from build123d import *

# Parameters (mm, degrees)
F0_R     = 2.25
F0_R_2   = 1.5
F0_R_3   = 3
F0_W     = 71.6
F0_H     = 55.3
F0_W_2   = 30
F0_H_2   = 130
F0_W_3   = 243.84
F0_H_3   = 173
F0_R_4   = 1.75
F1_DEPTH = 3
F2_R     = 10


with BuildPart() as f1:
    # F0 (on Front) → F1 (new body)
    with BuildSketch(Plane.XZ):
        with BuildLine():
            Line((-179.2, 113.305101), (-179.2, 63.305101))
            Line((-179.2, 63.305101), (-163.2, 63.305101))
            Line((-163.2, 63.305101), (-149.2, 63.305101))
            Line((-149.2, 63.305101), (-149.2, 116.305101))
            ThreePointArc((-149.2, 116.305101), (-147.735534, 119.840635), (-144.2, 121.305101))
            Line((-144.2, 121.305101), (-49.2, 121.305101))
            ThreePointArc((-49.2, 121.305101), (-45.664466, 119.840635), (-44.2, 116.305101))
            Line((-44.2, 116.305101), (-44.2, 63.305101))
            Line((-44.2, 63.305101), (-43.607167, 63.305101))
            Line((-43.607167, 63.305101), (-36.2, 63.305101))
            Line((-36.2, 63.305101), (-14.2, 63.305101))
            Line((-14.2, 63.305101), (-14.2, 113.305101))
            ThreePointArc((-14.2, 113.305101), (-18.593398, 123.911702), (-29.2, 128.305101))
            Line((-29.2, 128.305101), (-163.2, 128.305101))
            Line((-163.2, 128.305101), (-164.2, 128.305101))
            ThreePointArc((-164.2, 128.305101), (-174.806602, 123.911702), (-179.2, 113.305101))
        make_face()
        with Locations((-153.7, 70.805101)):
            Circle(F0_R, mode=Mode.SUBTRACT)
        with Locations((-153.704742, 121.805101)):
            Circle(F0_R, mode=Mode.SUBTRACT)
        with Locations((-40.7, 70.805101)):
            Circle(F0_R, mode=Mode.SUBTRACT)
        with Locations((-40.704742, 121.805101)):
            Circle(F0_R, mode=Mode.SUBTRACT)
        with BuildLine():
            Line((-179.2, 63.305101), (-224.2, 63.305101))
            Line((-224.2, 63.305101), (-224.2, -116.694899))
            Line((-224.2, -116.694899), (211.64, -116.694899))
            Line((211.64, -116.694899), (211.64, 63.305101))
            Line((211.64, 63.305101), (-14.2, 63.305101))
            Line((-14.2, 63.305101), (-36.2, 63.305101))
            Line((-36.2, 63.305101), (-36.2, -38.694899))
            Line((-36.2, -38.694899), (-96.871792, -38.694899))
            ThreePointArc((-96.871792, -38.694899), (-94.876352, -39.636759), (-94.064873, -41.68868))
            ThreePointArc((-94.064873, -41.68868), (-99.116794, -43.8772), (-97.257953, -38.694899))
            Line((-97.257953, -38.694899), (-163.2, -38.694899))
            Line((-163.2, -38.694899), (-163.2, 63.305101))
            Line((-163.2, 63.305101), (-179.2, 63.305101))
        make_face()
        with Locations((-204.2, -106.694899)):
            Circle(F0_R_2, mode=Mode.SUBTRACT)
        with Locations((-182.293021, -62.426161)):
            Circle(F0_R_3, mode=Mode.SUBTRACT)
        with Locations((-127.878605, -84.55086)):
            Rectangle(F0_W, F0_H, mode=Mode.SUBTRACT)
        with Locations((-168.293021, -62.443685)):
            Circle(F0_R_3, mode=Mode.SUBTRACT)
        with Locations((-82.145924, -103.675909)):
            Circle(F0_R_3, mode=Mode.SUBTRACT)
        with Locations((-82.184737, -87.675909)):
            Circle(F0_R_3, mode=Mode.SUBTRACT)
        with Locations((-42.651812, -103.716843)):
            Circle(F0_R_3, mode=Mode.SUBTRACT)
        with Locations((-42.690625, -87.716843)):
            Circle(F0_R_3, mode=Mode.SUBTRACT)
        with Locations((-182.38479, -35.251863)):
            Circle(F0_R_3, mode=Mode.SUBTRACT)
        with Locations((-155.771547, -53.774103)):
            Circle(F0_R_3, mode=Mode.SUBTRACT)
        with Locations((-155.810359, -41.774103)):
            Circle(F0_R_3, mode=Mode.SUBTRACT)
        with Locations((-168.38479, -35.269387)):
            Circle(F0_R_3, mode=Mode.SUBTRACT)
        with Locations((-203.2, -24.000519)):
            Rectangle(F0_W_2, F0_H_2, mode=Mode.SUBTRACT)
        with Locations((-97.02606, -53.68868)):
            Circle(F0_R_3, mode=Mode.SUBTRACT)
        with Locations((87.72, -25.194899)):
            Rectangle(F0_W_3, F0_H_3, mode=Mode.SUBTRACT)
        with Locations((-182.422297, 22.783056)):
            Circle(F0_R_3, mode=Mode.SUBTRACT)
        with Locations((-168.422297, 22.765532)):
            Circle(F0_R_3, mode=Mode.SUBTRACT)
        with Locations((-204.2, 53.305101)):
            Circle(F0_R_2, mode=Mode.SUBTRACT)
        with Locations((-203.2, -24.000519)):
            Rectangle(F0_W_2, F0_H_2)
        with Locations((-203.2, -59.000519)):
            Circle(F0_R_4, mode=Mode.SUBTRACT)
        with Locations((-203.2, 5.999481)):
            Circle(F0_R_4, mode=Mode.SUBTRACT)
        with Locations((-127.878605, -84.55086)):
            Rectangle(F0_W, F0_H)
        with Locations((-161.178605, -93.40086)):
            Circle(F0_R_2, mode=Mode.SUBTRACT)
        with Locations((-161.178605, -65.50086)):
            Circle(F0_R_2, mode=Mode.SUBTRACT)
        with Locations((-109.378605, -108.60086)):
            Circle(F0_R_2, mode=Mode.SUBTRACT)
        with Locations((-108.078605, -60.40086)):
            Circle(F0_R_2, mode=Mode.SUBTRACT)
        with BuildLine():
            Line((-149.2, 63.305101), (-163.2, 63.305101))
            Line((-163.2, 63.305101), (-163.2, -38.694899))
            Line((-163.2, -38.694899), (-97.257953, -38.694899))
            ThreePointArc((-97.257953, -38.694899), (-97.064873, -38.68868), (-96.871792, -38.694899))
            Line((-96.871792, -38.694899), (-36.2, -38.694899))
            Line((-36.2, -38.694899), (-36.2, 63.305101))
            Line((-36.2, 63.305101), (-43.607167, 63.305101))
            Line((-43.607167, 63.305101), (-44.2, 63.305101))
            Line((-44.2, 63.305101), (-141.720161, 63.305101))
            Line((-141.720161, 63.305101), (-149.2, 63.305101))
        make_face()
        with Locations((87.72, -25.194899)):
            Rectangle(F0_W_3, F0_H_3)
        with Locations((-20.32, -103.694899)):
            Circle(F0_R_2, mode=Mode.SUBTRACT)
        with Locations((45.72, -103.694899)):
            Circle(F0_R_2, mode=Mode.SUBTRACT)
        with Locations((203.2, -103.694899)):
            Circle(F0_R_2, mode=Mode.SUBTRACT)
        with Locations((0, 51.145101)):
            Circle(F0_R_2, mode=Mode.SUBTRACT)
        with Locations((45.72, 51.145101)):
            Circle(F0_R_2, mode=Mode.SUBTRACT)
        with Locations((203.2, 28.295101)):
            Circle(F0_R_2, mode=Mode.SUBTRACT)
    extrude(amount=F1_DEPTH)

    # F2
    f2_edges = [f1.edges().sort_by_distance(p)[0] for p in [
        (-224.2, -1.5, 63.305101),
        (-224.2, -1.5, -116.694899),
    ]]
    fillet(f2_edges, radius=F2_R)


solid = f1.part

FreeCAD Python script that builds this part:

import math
import FreeCAD as App
import Part
import Sketcher


def edges_at(feature, points):
    """Names of the edges that pass closest to the given points."""
    edges = feature.Shape.Edges
    near = lambda p: min(range(len(edges)), key=lambda i: edges[i].distToShape(Part.Vertex(*p))[0])
    return sorted({f"Edge{near(p) + 1}" for p in points})

doc = App.newDocument("Part")
body = doc.addObject("PartDesign::Body", "Body")

sketch1 = body.newObject("Sketcher::SketchObject", "Sketch")
sketch1.AttachmentSupport = (doc.getObject("XZ_Plane"), [""])
sketch1.MapMode = "FlatFace"
sketch1.addGeometry(Part.LineSegment(App.Vector(-179.2, 113.305101, 0), App.Vector(-179.2, 63.305101, 0)), False)
sketch1.addGeometry(Part.LineSegment(App.Vector(-179.2, 63.305101, 0), App.Vector(-224.2, 63.305101, 0)), False)
sketch1.addGeometry(Part.LineSegment(App.Vector(-224.2, 63.305101, 0), App.Vector(-224.2, -116.694899, 0)), False)
sketch1.addGeometry(Part.LineSegment(App.Vector(-224.2, -116.694899, 0), App.Vector(211.64, -116.694899, 0)), False)
sketch1.addGeometry(Part.LineSegment(App.Vector(211.64, -116.694899, 0), App.Vector(211.64, 63.305101, 0)), False)
sketch1.addGeometry(Part.LineSegment(App.Vector(211.64, 63.305101, 0), App.Vector(-14.2, 63.305101, 0)), False)
sketch1.addGeometry(Part.LineSegment(App.Vector(-14.2, 63.305101, 0), App.Vector(-14.2, 113.305101, 0)), False)
sketch1.addGeometry(Part.ArcOfCircle(Part.Circle(App.Vector(-29.200001, 113.3051, 0), App.Vector(0, 0, 1), 15.000001), math.radians(0.000003), math.radians(89.999997)), False)
sketch1.addGeometry(Part.LineSegment(App.Vector(-29.2, 128.305101, 0), App.Vector(-164.2, 128.305101, 0)), False)
sketch1.addGeometry(Part.ArcOfCircle(Part.Circle(App.Vector(-164.199999, 113.3051, 0), App.Vector(0, 0, 1), 15.000001), math.radians(90.000003), math.radians(179.999997)), False)
sketch1.addGeometry(Part.Circle(App.Vector(-204.2, -106.694899, 0), App.Vector(0, 0, 1), 1.5), False)
sketch1.addGeometry(Part.Circle(App.Vector(-161.178605, -93.40086, 0), App.Vector(0, 0, 1), 1.5), False)
sketch1.addGeometry(Part.Circle(App.Vector(-109.378605, -108.60086, 0), App.Vector(0, 0, 1), 1.5), False)
sketch1.addGeometry(Part.Circle(App.Vector(-203.2, -59.000519, 0), App.Vector(0, 0, 1), 1.75), False)
sketch1.addGeometry(Part.Circle(App.Vector(-182.293021, -62.426161, 0), App.Vector(0, 0, 1), 3), False)
sketch1.addGeometry(Part.Circle(App.Vector(-168.293021, -62.443685, 0), App.Vector(0, 0, 1), 3), False)
sketch1.addGeometry(Part.Circle(App.Vector(-161.178605, -65.50086, 0), App.Vector(0, 0, 1), 1.5), False)
sketch1.addGeometry(Part.Circle(App.Vector(-155.771547, -53.774103, 0), App.Vector(0, 0, 1), 3), False)
sketch1.addGeometry(Part.Circle(App.Vector(-108.078605, -60.40086, 0), App.Vector(0, 0, 1), 1.5), False)
sketch1.addGeometry(Part.Circle(App.Vector(-82.145924, -103.675909, 0), App.Vector(0, 0, 1), 3), False)
sketch1.addGeometry(Part.Circle(App.Vector(-82.184737, -87.675909, 0), App.Vector(0, 0, 1), 3), False)
sketch1.addGeometry(Part.Circle(App.Vector(-42.651812, -103.716843, 0), App.Vector(0, 0, 1), 3), False)
sketch1.addGeometry(Part.Circle(App.Vector(-20.32, -103.694899, 0), App.Vector(0, 0, 1), 1.5), False)
sketch1.addGeometry(Part.Circle(App.Vector(-42.690625, -87.716843, 0), App.Vector(0, 0, 1), 3), False)
sketch1.addGeometry(Part.Circle(App.Vector(-97.02606, -53.68868, 0), App.Vector(0, 0, 1), 3), False)
sketch1.addGeometry(Part.Circle(App.Vector(-155.810359, -41.774103, 0), App.Vector(0, 0, 1), 3), False)
sketch1.addGeometry(Part.Circle(App.Vector(-182.38479, -35.251863, 0), App.Vector(0, 0, 1), 3), False)
sketch1.addGeometry(Part.Circle(App.Vector(-168.38479, -35.269387, 0), App.Vector(0, 0, 1), 3), False)
sketch1.addGeometry(Part.Circle(App.Vector(-203.2, 5.999481, 0), App.Vector(0, 0, 1), 1.75), False)
sketch1.addGeometry(Part.ArcOfCircle(Part.Circle(App.Vector(-97.064873, -41.688679, 0), App.Vector(0, 0, 1), 3), math.radians(93.690103), math.radians(359.999989)), False)
sketch1.addGeometry(Part.ArcOfCircle(Part.Circle(App.Vector(-97.064873, -41.689062, 0), App.Vector(0, 0, 1), 3.000382), math.radians(86.310354), math.radians(93.689646)), False)
sketch1.addGeometry(Part.ArcOfCircle(Part.Circle(App.Vector(-97.064873, -41.688679, 0), App.Vector(0, 0, 1), 3), math.radians(-0.00002), math.radians(86.309879)), False)
sketch1.addGeometry(Part.Circle(App.Vector(45.72, -103.694899, 0), App.Vector(0, 0, 1), 1.5), False)
sketch1.addGeometry(Part.Circle(App.Vector(203.2, -103.694899, 0), App.Vector(0, 0, 1), 1.5), False)
sketch1.addGeometry(Part.Circle(App.Vector(-182.422297, 22.783056, 0), App.Vector(0, 0, 1), 3), False)
sketch1.addGeometry(Part.Circle(App.Vector(-168.422297, 22.765532, 0), App.Vector(0, 0, 1), 3), False)
sketch1.addGeometry(Part.Circle(App.Vector(-204.2, 53.305101, 0), App.Vector(0, 0, 1), 1.5), False)
sketch1.addGeometry(Part.Circle(App.Vector(-153.7, 70.805101, 0), App.Vector(0, 0, 1), 2.25), False)
sketch1.addGeometry(Part.Circle(App.Vector(-153.704742, 121.805101, 0), App.Vector(0, 0, 1), 2.25), False)
sketch1.addGeometry(Part.LineSegment(App.Vector(-149.2, 63.305101, 0), App.Vector(-149.2, 116.305101, 0)), False)
sketch1.addGeometry(Part.ArcOfCircle(Part.Circle(App.Vector(-144.2, 116.305101, 0), App.Vector(0, 0, 1), 5), math.radians(89.999996), math.radians(180.000004)), False)
sketch1.addGeometry(Part.LineSegment(App.Vector(-144.2, 121.305101, 0), App.Vector(-49.2, 121.305101, 0)), False)
sketch1.addGeometry(Part.ArcOfCircle(Part.Circle(App.Vector(-49.2, 116.305101, 0), App.Vector(0, 0, 1), 5), math.radians(-0.000004), math.radians(90.000004)), False)
sketch1.addGeometry(Part.LineSegment(App.Vector(-44.2, 116.305101, 0), App.Vector(-44.2, 63.305101, 0)), False)
sketch1.addGeometry(Part.LineSegment(App.Vector(-44.2, 63.305101, 0), App.Vector(-149.2, 63.305101, 0)), False)
sketch1.addGeometry(Part.Circle(App.Vector(-40.7, 70.805101, 0), App.Vector(0, 0, 1), 2.25), False)
sketch1.addGeometry(Part.Circle(App.Vector(-40.704742, 121.805101, 0), App.Vector(0, 0, 1), 2.25), False)
sketch1.addGeometry(Part.Circle(App.Vector(0, 51.145101, 0), App.Vector(0, 0, 1), 1.5), False)
sketch1.addGeometry(Part.Circle(App.Vector(45.72, 51.145101, 0), App.Vector(0, 0, 1), 1.5), False)
sketch1.addGeometry(Part.Circle(App.Vector(203.2, 28.295101, 0), App.Vector(0, 0, 1), 1.5), False)
sketch1.addConstraint(Sketcher.Constraint("Coincident", 0, 2, 1, 1))
sketch1.addConstraint(Sketcher.Constraint("Coincident", 1, 2, 2, 1))
sketch1.addConstraint(Sketcher.Constraint("Coincident", 2, 2, 3, 1))
sketch1.addConstraint(Sketcher.Constraint("Coincident", 3, 2, 4, 1))
sketch1.addConstraint(Sketcher.Constraint("Coincident", 4, 2, 5, 1))
sketch1.addConstraint(Sketcher.Constraint("Coincident", 5, 2, 6, 1))
sketch1.addConstraint(Sketcher.Constraint("Tangent", 6, 2, 7, 1))
sketch1.addConstraint(Sketcher.Constraint("Tangent", 7, 2, 8, 1))
sketch1.addConstraint(Sketcher.Constraint("Tangent", 8, 2, 9, 1))
sketch1.addConstraint(Sketcher.Constraint("Tangent", 9, 2, 0, 1))
sketch1.addConstraint(Sketcher.Constraint("Coincident", 29, 1, 30, 2))
sketch1.addConstraint(Sketcher.Constraint("Coincident", 30, 1, 31, 2))
sketch1.addConstraint(Sketcher.Constraint("Tangent", 31, 1, 29, 2))
sketch1.addConstraint(Sketcher.Constraint("Tangent", 39, 2, 40, 2))
sketch1.addConstraint(Sketcher.Constraint("Tangent", 40, 1, 41, 1))
sketch1.addConstraint(Sketcher.Constraint("Tangent", 41, 2, 42, 2))
sketch1.addConstraint(Sketcher.Constraint("Tangent", 42, 1, 43, 1))
sketch1.addConstraint(Sketcher.Constraint("Coincident", 43, 2, 44, 1))
sketch1.addConstraint(Sketcher.Constraint("Coincident", 44, 2, 39, 1))
sketch1.addConstraint(Sketcher.Constraint("Vertical", 0))
sketch1.addConstraint(Sketcher.Constraint("Horizontal", 1))
sketch1.addConstraint(Sketcher.Constraint("Vertical", 2))
sketch1.addConstraint(Sketcher.Constraint("Horizontal", 3))
sketch1.addConstraint(Sketcher.Constraint("Vertical", 4))
sketch1.addConstraint(Sketcher.Constraint("Horizontal", 5))
sketch1.addConstraint(Sketcher.Constraint("Vertical", 6))
sketch1.addConstraint(Sketcher.Constraint("Horizontal", 8))
sketch1.addConstraint(Sketcher.Constraint("Vertical", 39))
sketch1.addConstraint(Sketcher.Constraint("Horizontal", 41))
sketch1.addConstraint(Sketcher.Constraint("Vertical", 43))
sketch1.addConstraint(Sketcher.Constraint("Horizontal", 44))
sketch1.addConstraint(Sketcher.Constraint("Equal", 7, 9))
sketch1.addConstraint(Sketcher.Constraint("Equal", 10, 11))
sketch1.addConstraint(Sketcher.Constraint("Equal", 11, 12))
sketch1.addConstraint(Sketcher.Constraint("Equal", 14, 15))
sketch1.addConstraint(Sketcher.Constraint("Equal", 12, 16))
sketch1.addConstraint(Sketcher.Constraint("Equal", 15, 17))
sketch1.addConstraint(Sketcher.Constraint("Equal", 16, 18))
sketch1.addConstraint(Sketcher.Constraint("Equal", 17, 19))
sketch1.addConstraint(Sketcher.Constraint("Equal", 19, 20))
sketch1.addConstraint(Sketcher.Constraint("Equal", 20, 21))
sketch1.addConstraint(Sketcher.Constraint("Equal", 18, 22))
sketch1.addConstraint(Sketcher.Constraint("Equal", 21, 23))
sketch1.addConstraint(Sketcher.Constraint("Equal", 23, 24))
sketch1.addConstraint(Sketcher.Constraint("Equal", 24, 25))
sketch1.addConstraint(Sketcher.Constraint("Equal", 25, 26))
sketch1.addConstraint(Sketcher.Constraint("Equal", 26, 27))
sketch1.addConstraint(Sketcher.Constraint("Equal", 13, 28))
sketch1.addConstraint(Sketcher.Constraint("Equal", 27, 29))
sketch1.addConstraint(Sketcher.Constraint("Equal", 29, 31))
sketch1.addConstraint(Sketcher.Constraint("Equal", 22, 32))
sketch1.addConstraint(Sketcher.Constraint("Equal", 32, 33))
sketch1.addConstraint(Sketcher.Constraint("Equal", 31, 34))
sketch1.addConstraint(Sketcher.Constraint("Equal", 34, 35))
sketch1.addConstraint(Sketcher.Constraint("Equal", 33, 36))
sketch1.addConstraint(Sketcher.Constraint("Equal", 37, 38))
sketch1.addConstraint(Sketcher.Constraint("Equal", 40, 42))
sketch1.addConstraint(Sketcher.Constraint("Equal", 38, 45))
sketch1.addConstraint(Sketcher.Constraint("Equal", 45, 46))
sketch1.addConstraint(Sketcher.Constraint("Equal", 36, 47))
sketch1.addConstraint(Sketcher.Constraint("Equal", 47, 48))
sketch1.addConstraint(Sketcher.Constraint("Equal", 48, 49))
sketch1.addConstraint(Sketcher.Constraint("PointOnObject", 47, 3, -2))
sketch1.addConstraint(Sketcher.Constraint("Horizontal", 22, 3, 32, 3))
sketch1.addConstraint(Sketcher.Constraint("Horizontal", 32, 3, 33, 3))
sketch1.addConstraint(Sketcher.Constraint("Horizontal", 37, 3, 45, 3))
sketch1.addConstraint(Sketcher.Constraint("Horizontal", 38, 3, 46, 3))
sketch1.addConstraint(Sketcher.Constraint("Horizontal", 47, 3, 48, 3))
sketch1.addConstraint(Sketcher.Constraint("Horizontal", 1, 2, 4, 2))
sketch1.addConstraint(Sketcher.Constraint("Horizontal", 29, 1, 30, 1))
sketch1.addConstraint(Sketcher.Constraint("Horizontal", 29, 3, 31, 1))
sketch1.addConstraint(Sketcher.Constraint("Horizontal", 5, 2, 43, 2))
sketch1.addConstraint(Sketcher.Constraint("Vertical", 11, 3, 16, 3))
sketch1.addConstraint(Sketcher.Constraint("Vertical", 13, 3, 28, 3))
sketch1.addConstraint(Sketcher.Constraint("Vertical", 10, 3, 36, 3))
sketch1.addConstraint(Sketcher.Constraint("Vertical", 32, 3, 48, 3))
sketch1.addConstraint(Sketcher.Constraint("Vertical", 33, 3, 49, 3))
sketch1.addConstraint(Sketcher.Constraint("Diameter", 10, 3.0))
sketch1.addConstraint(Sketcher.Constraint("Diameter", 14, 6.0))
sketch1.addConstraint(Sketcher.Constraint("Radius", 7, 15.000001))
sketch1.addConstraint(Sketcher.Constraint("Radius", 40, 5.0))
sketch1.addConstraint(Sketcher.Constraint("Diameter", 13, 3.5))
sketch1.addConstraint(Sketcher.Constraint("Diameter", 37, 4.5))
sketch1.addConstraint(Sketcher.Constraint("DistanceX", 1, 2, 1, 1, 45.0))
sketch1.addConstraint(Sketcher.Constraint("DistanceX", 8, 2, 8, 1, 135.0))
sketch1.addConstraint(Sketcher.Constraint("DistanceX", 41, 1, 41, 2, 95.0))
sketch1.addConstraint(Sketcher.Constraint("DistanceY", 0, 2, 0, 1, 50.0))
sketch1.addConstraint(Sketcher.Constraint("DistanceY", 2, 2, 2, 1, 180.0))
sketch1.addConstraint(Sketcher.Constraint("DistanceY", 39, 1, 39, 2, 53.0))
sketch1.addConstraint(Sketcher.Constraint("DistanceX", 10, 3, 9, 3, 40.000001))
sketch1.addConstraint(Sketcher.Constraint("DistanceY", 10, 3, 9, 3, 219.999999))
sketch1.addConstraint(Sketcher.Constraint("DistanceX", 10, 3, 13, 3, 1.0))
sketch1.addConstraint(Sketcher.Constraint("DistanceX", 14, 3, 15, 3, 14.0))
sketch1.addConstraint(Sketcher.Constraint("DistanceY", 11, 3, 18, 3, 33.0))
sketch1.addConstraint(Sketcher.Constraint("DistanceY", 19, 3, 20, 3, 16.0))
sketch1.addConstraint(Sketcher.Constraint("DistanceY", 21, 3, 23, 3, 16.0))
sketch1.addConstraint(Sketcher.Constraint("DistanceY", 17, 3, 25, 3, 12.0))
sketch1.addConstraint(Sketcher.Constraint("DistanceX", 26, 3, 27, 3, 14.0))
sketch1.addConstraint(Sketcher.Constraint("DistanceY", 13, 3, 28, 3, 65.0))
sketch1.addConstraint(Sketcher.Constraint("DistanceY", 24, 3, 29, 3, 12.000001))
sketch1.addConstraint(Sketcher.Constraint("DistanceX", 34, 3, 35, 3, 14.0))
sketch1.addConstraint(Sketcher.Constraint("DistanceY", 36, 3, 9, 3, 59.999999))
sketch1.addConstraint(Sketcher.Constraint("DistanceY", 37, 3, 38, 3, 51.0))
sketch1.addConstraint(Sketcher.Constraint("DistanceX", 9, 3, 40, 3, 19.999999))
sketch1.addConstraint(Sketcher.Constraint("DistanceX", 37, 3, 45, 3, 113.0))
sketch1.addConstraint(Sketcher.Constraint("DistanceX", 38, 3, 46, 3, 113.0))
sketch1.addConstraint(Sketcher.Constraint("DistanceY", 3, 2, 33, 3, 13.0))
sketch1.addConstraint(Sketcher.Constraint("DistanceX", 3, 1, 3, 2, 435.84))
sketch1.addConstraint(Sketcher.Constraint("DistanceX", 7, 3, -1, 1, 29.200001))
sketch1.addConstraint(Sketcher.Constraint("DistanceX", -1, 1, 33, 3, 203.2))
sketch1.addConstraint(Sketcher.Constraint("DistanceX", 37, 3, -1, 1, 153.7))
sketch1.addConstraint(Sketcher.Constraint("DistanceX", 11, 3, 12, 3, 51.8))
sketch1.addConstraint(Sketcher.Constraint("DistanceY", 12, 3, 11, 3, 15.2))
sketch1.addConstraint(Sketcher.Constraint("DistanceY", 11, 3, 16, 3, 27.9))
sketch1.addConstraint(Sketcher.Constraint("DistanceX", 12, 3, 18, 3, 1.3))
sketch1.addConstraint(Sketcher.Constraint("DistanceY", 37, 3, 9, 3, 42.499999))
sketch1.addConstraint(Sketcher.Constraint("DistanceX", 22, 3, -1, 1, 20.32))
sketch1.addConstraint(Sketcher.Constraint("DistanceX", -1, 1, 32, 3, 45.72))
sketch1.addConstraint(Sketcher.Constraint("DistanceY", 47, 3, 45, 3, 19.66))
sketch1.addConstraint(Sketcher.Constraint("DistanceY", 33, 3, 49, 3, 131.99))
sketch1.addConstraint(Sketcher.Constraint("Radius", 30, 3.000382))
sketch1.addConstraint(Sketcher.Constraint("DistanceY", -1, 1, 7, 3, 113.3051))
sketch1.addConstraint(Sketcher.Constraint("DistanceY", 29, 1, -1, 1, 38.694899))
sketch1.addConstraint(Sketcher.Constraint("DistanceY", 11, 3, 14, 3, 30.974699))
sketch1.addConstraint(Sketcher.Constraint("DistanceX", 19, 3, 23, 3, 39.455299))
sketch1.addConstraint(Sketcher.Constraint("DistanceY", 14, 3, 26, 3, 27.174298))
sketch1.addConstraint(Sketcher.Constraint("DistanceY", 15, 3, 27, 3, 27.174298))
sketch1.addConstraint(Sketcher.Constraint("DistanceY", 11, 3, -1, 1, 93.40086))
sketch1.addConstraint(Sketcher.Constraint("DistanceY", 13, 3, -1, 1, 59.000519))
sketch1.addConstraint(Sketcher.Constraint("DistanceX", 14, 3, -1, 1, 182.293021))
sketch1.addConstraint(Sketcher.Constraint("DistanceY", 19, 3, -1, 1, 103.675909))
sketch1.addConstraint(Sketcher.Constraint("DistanceX", 24, 3, -1, 1, 97.02606))
sketch1.addConstraint(Sketcher.Constraint("DistanceY", 24, 3, -1, 1, 53.68868))
sketch1.addConstraint(Sketcher.Constraint("DistanceX", 25, 3, -1, 1, 155.810359))
sketch1.addConstraint(Sketcher.Constraint("DistanceX", 26, 3, -1, 1, 182.38479))
sketch1.addConstraint(Sketcher.Constraint("DistanceX", 30, 1, -1, 1, 96.871792))
sketch1.addConstraint(Sketcher.Constraint("DistanceX", 16, 3, 17, 3, 5.407058))
sketch1.addConstraint(Sketcher.Constraint("DistanceY", 14, 3, 17, 3, 8.652058))
sketch1.addConstraint(Sketcher.Constraint("DistanceX", 12, 3, 19, 3, 27.232681))
sketch1.addConstraint(Sketcher.Constraint("DistanceX", 11, 3, 20, 3, 78.993868))
sketch1.addConstraint(Sketcher.Constraint("DistanceX", 19, 3, 21, 3, 39.494112))
sketch1.addConstraint(Sketcher.Constraint("DistanceX", 21, 3, 22, 3, 22.331812))
sketch1.addConstraint(Sketcher.Constraint("DistanceY", 27, 3, 28, 3, 41.268868))
sketch1.addConstraint(Sketcher.Constraint("DistanceY", 26, 3, 34, 3, 58.034919))
sketch1.addConstraint(Sketcher.Constraint("DistanceX", 34, 3, 17, 3, 26.65075))
sketch1.addConstraint(Sketcher.Constraint("DistanceY", 28, 3, 35, 3, 16.766051))
sketch1.addConstraint(Sketcher.Constraint("DistanceX", 38, 3, 40, 3, 9.504742))
sketch1.addConstraint(Sketcher.Constraint("DistanceY", 21, 3, -1, 1, 103.716843))
pad1 = body.newObject("PartDesign::Pad", "Pad")
pad1.Profile = sketch1
pad1.Length = 3
doc.recompute()

fillet = body.newObject("PartDesign::Fillet", "Fillet")
fillet.Base = (pad1, edges_at(pad1, [(-224.2, -1.5, 63.305), (-224.2, -1.5, -116.695)]))
fillet.Radius = 10

doc.recompute()
